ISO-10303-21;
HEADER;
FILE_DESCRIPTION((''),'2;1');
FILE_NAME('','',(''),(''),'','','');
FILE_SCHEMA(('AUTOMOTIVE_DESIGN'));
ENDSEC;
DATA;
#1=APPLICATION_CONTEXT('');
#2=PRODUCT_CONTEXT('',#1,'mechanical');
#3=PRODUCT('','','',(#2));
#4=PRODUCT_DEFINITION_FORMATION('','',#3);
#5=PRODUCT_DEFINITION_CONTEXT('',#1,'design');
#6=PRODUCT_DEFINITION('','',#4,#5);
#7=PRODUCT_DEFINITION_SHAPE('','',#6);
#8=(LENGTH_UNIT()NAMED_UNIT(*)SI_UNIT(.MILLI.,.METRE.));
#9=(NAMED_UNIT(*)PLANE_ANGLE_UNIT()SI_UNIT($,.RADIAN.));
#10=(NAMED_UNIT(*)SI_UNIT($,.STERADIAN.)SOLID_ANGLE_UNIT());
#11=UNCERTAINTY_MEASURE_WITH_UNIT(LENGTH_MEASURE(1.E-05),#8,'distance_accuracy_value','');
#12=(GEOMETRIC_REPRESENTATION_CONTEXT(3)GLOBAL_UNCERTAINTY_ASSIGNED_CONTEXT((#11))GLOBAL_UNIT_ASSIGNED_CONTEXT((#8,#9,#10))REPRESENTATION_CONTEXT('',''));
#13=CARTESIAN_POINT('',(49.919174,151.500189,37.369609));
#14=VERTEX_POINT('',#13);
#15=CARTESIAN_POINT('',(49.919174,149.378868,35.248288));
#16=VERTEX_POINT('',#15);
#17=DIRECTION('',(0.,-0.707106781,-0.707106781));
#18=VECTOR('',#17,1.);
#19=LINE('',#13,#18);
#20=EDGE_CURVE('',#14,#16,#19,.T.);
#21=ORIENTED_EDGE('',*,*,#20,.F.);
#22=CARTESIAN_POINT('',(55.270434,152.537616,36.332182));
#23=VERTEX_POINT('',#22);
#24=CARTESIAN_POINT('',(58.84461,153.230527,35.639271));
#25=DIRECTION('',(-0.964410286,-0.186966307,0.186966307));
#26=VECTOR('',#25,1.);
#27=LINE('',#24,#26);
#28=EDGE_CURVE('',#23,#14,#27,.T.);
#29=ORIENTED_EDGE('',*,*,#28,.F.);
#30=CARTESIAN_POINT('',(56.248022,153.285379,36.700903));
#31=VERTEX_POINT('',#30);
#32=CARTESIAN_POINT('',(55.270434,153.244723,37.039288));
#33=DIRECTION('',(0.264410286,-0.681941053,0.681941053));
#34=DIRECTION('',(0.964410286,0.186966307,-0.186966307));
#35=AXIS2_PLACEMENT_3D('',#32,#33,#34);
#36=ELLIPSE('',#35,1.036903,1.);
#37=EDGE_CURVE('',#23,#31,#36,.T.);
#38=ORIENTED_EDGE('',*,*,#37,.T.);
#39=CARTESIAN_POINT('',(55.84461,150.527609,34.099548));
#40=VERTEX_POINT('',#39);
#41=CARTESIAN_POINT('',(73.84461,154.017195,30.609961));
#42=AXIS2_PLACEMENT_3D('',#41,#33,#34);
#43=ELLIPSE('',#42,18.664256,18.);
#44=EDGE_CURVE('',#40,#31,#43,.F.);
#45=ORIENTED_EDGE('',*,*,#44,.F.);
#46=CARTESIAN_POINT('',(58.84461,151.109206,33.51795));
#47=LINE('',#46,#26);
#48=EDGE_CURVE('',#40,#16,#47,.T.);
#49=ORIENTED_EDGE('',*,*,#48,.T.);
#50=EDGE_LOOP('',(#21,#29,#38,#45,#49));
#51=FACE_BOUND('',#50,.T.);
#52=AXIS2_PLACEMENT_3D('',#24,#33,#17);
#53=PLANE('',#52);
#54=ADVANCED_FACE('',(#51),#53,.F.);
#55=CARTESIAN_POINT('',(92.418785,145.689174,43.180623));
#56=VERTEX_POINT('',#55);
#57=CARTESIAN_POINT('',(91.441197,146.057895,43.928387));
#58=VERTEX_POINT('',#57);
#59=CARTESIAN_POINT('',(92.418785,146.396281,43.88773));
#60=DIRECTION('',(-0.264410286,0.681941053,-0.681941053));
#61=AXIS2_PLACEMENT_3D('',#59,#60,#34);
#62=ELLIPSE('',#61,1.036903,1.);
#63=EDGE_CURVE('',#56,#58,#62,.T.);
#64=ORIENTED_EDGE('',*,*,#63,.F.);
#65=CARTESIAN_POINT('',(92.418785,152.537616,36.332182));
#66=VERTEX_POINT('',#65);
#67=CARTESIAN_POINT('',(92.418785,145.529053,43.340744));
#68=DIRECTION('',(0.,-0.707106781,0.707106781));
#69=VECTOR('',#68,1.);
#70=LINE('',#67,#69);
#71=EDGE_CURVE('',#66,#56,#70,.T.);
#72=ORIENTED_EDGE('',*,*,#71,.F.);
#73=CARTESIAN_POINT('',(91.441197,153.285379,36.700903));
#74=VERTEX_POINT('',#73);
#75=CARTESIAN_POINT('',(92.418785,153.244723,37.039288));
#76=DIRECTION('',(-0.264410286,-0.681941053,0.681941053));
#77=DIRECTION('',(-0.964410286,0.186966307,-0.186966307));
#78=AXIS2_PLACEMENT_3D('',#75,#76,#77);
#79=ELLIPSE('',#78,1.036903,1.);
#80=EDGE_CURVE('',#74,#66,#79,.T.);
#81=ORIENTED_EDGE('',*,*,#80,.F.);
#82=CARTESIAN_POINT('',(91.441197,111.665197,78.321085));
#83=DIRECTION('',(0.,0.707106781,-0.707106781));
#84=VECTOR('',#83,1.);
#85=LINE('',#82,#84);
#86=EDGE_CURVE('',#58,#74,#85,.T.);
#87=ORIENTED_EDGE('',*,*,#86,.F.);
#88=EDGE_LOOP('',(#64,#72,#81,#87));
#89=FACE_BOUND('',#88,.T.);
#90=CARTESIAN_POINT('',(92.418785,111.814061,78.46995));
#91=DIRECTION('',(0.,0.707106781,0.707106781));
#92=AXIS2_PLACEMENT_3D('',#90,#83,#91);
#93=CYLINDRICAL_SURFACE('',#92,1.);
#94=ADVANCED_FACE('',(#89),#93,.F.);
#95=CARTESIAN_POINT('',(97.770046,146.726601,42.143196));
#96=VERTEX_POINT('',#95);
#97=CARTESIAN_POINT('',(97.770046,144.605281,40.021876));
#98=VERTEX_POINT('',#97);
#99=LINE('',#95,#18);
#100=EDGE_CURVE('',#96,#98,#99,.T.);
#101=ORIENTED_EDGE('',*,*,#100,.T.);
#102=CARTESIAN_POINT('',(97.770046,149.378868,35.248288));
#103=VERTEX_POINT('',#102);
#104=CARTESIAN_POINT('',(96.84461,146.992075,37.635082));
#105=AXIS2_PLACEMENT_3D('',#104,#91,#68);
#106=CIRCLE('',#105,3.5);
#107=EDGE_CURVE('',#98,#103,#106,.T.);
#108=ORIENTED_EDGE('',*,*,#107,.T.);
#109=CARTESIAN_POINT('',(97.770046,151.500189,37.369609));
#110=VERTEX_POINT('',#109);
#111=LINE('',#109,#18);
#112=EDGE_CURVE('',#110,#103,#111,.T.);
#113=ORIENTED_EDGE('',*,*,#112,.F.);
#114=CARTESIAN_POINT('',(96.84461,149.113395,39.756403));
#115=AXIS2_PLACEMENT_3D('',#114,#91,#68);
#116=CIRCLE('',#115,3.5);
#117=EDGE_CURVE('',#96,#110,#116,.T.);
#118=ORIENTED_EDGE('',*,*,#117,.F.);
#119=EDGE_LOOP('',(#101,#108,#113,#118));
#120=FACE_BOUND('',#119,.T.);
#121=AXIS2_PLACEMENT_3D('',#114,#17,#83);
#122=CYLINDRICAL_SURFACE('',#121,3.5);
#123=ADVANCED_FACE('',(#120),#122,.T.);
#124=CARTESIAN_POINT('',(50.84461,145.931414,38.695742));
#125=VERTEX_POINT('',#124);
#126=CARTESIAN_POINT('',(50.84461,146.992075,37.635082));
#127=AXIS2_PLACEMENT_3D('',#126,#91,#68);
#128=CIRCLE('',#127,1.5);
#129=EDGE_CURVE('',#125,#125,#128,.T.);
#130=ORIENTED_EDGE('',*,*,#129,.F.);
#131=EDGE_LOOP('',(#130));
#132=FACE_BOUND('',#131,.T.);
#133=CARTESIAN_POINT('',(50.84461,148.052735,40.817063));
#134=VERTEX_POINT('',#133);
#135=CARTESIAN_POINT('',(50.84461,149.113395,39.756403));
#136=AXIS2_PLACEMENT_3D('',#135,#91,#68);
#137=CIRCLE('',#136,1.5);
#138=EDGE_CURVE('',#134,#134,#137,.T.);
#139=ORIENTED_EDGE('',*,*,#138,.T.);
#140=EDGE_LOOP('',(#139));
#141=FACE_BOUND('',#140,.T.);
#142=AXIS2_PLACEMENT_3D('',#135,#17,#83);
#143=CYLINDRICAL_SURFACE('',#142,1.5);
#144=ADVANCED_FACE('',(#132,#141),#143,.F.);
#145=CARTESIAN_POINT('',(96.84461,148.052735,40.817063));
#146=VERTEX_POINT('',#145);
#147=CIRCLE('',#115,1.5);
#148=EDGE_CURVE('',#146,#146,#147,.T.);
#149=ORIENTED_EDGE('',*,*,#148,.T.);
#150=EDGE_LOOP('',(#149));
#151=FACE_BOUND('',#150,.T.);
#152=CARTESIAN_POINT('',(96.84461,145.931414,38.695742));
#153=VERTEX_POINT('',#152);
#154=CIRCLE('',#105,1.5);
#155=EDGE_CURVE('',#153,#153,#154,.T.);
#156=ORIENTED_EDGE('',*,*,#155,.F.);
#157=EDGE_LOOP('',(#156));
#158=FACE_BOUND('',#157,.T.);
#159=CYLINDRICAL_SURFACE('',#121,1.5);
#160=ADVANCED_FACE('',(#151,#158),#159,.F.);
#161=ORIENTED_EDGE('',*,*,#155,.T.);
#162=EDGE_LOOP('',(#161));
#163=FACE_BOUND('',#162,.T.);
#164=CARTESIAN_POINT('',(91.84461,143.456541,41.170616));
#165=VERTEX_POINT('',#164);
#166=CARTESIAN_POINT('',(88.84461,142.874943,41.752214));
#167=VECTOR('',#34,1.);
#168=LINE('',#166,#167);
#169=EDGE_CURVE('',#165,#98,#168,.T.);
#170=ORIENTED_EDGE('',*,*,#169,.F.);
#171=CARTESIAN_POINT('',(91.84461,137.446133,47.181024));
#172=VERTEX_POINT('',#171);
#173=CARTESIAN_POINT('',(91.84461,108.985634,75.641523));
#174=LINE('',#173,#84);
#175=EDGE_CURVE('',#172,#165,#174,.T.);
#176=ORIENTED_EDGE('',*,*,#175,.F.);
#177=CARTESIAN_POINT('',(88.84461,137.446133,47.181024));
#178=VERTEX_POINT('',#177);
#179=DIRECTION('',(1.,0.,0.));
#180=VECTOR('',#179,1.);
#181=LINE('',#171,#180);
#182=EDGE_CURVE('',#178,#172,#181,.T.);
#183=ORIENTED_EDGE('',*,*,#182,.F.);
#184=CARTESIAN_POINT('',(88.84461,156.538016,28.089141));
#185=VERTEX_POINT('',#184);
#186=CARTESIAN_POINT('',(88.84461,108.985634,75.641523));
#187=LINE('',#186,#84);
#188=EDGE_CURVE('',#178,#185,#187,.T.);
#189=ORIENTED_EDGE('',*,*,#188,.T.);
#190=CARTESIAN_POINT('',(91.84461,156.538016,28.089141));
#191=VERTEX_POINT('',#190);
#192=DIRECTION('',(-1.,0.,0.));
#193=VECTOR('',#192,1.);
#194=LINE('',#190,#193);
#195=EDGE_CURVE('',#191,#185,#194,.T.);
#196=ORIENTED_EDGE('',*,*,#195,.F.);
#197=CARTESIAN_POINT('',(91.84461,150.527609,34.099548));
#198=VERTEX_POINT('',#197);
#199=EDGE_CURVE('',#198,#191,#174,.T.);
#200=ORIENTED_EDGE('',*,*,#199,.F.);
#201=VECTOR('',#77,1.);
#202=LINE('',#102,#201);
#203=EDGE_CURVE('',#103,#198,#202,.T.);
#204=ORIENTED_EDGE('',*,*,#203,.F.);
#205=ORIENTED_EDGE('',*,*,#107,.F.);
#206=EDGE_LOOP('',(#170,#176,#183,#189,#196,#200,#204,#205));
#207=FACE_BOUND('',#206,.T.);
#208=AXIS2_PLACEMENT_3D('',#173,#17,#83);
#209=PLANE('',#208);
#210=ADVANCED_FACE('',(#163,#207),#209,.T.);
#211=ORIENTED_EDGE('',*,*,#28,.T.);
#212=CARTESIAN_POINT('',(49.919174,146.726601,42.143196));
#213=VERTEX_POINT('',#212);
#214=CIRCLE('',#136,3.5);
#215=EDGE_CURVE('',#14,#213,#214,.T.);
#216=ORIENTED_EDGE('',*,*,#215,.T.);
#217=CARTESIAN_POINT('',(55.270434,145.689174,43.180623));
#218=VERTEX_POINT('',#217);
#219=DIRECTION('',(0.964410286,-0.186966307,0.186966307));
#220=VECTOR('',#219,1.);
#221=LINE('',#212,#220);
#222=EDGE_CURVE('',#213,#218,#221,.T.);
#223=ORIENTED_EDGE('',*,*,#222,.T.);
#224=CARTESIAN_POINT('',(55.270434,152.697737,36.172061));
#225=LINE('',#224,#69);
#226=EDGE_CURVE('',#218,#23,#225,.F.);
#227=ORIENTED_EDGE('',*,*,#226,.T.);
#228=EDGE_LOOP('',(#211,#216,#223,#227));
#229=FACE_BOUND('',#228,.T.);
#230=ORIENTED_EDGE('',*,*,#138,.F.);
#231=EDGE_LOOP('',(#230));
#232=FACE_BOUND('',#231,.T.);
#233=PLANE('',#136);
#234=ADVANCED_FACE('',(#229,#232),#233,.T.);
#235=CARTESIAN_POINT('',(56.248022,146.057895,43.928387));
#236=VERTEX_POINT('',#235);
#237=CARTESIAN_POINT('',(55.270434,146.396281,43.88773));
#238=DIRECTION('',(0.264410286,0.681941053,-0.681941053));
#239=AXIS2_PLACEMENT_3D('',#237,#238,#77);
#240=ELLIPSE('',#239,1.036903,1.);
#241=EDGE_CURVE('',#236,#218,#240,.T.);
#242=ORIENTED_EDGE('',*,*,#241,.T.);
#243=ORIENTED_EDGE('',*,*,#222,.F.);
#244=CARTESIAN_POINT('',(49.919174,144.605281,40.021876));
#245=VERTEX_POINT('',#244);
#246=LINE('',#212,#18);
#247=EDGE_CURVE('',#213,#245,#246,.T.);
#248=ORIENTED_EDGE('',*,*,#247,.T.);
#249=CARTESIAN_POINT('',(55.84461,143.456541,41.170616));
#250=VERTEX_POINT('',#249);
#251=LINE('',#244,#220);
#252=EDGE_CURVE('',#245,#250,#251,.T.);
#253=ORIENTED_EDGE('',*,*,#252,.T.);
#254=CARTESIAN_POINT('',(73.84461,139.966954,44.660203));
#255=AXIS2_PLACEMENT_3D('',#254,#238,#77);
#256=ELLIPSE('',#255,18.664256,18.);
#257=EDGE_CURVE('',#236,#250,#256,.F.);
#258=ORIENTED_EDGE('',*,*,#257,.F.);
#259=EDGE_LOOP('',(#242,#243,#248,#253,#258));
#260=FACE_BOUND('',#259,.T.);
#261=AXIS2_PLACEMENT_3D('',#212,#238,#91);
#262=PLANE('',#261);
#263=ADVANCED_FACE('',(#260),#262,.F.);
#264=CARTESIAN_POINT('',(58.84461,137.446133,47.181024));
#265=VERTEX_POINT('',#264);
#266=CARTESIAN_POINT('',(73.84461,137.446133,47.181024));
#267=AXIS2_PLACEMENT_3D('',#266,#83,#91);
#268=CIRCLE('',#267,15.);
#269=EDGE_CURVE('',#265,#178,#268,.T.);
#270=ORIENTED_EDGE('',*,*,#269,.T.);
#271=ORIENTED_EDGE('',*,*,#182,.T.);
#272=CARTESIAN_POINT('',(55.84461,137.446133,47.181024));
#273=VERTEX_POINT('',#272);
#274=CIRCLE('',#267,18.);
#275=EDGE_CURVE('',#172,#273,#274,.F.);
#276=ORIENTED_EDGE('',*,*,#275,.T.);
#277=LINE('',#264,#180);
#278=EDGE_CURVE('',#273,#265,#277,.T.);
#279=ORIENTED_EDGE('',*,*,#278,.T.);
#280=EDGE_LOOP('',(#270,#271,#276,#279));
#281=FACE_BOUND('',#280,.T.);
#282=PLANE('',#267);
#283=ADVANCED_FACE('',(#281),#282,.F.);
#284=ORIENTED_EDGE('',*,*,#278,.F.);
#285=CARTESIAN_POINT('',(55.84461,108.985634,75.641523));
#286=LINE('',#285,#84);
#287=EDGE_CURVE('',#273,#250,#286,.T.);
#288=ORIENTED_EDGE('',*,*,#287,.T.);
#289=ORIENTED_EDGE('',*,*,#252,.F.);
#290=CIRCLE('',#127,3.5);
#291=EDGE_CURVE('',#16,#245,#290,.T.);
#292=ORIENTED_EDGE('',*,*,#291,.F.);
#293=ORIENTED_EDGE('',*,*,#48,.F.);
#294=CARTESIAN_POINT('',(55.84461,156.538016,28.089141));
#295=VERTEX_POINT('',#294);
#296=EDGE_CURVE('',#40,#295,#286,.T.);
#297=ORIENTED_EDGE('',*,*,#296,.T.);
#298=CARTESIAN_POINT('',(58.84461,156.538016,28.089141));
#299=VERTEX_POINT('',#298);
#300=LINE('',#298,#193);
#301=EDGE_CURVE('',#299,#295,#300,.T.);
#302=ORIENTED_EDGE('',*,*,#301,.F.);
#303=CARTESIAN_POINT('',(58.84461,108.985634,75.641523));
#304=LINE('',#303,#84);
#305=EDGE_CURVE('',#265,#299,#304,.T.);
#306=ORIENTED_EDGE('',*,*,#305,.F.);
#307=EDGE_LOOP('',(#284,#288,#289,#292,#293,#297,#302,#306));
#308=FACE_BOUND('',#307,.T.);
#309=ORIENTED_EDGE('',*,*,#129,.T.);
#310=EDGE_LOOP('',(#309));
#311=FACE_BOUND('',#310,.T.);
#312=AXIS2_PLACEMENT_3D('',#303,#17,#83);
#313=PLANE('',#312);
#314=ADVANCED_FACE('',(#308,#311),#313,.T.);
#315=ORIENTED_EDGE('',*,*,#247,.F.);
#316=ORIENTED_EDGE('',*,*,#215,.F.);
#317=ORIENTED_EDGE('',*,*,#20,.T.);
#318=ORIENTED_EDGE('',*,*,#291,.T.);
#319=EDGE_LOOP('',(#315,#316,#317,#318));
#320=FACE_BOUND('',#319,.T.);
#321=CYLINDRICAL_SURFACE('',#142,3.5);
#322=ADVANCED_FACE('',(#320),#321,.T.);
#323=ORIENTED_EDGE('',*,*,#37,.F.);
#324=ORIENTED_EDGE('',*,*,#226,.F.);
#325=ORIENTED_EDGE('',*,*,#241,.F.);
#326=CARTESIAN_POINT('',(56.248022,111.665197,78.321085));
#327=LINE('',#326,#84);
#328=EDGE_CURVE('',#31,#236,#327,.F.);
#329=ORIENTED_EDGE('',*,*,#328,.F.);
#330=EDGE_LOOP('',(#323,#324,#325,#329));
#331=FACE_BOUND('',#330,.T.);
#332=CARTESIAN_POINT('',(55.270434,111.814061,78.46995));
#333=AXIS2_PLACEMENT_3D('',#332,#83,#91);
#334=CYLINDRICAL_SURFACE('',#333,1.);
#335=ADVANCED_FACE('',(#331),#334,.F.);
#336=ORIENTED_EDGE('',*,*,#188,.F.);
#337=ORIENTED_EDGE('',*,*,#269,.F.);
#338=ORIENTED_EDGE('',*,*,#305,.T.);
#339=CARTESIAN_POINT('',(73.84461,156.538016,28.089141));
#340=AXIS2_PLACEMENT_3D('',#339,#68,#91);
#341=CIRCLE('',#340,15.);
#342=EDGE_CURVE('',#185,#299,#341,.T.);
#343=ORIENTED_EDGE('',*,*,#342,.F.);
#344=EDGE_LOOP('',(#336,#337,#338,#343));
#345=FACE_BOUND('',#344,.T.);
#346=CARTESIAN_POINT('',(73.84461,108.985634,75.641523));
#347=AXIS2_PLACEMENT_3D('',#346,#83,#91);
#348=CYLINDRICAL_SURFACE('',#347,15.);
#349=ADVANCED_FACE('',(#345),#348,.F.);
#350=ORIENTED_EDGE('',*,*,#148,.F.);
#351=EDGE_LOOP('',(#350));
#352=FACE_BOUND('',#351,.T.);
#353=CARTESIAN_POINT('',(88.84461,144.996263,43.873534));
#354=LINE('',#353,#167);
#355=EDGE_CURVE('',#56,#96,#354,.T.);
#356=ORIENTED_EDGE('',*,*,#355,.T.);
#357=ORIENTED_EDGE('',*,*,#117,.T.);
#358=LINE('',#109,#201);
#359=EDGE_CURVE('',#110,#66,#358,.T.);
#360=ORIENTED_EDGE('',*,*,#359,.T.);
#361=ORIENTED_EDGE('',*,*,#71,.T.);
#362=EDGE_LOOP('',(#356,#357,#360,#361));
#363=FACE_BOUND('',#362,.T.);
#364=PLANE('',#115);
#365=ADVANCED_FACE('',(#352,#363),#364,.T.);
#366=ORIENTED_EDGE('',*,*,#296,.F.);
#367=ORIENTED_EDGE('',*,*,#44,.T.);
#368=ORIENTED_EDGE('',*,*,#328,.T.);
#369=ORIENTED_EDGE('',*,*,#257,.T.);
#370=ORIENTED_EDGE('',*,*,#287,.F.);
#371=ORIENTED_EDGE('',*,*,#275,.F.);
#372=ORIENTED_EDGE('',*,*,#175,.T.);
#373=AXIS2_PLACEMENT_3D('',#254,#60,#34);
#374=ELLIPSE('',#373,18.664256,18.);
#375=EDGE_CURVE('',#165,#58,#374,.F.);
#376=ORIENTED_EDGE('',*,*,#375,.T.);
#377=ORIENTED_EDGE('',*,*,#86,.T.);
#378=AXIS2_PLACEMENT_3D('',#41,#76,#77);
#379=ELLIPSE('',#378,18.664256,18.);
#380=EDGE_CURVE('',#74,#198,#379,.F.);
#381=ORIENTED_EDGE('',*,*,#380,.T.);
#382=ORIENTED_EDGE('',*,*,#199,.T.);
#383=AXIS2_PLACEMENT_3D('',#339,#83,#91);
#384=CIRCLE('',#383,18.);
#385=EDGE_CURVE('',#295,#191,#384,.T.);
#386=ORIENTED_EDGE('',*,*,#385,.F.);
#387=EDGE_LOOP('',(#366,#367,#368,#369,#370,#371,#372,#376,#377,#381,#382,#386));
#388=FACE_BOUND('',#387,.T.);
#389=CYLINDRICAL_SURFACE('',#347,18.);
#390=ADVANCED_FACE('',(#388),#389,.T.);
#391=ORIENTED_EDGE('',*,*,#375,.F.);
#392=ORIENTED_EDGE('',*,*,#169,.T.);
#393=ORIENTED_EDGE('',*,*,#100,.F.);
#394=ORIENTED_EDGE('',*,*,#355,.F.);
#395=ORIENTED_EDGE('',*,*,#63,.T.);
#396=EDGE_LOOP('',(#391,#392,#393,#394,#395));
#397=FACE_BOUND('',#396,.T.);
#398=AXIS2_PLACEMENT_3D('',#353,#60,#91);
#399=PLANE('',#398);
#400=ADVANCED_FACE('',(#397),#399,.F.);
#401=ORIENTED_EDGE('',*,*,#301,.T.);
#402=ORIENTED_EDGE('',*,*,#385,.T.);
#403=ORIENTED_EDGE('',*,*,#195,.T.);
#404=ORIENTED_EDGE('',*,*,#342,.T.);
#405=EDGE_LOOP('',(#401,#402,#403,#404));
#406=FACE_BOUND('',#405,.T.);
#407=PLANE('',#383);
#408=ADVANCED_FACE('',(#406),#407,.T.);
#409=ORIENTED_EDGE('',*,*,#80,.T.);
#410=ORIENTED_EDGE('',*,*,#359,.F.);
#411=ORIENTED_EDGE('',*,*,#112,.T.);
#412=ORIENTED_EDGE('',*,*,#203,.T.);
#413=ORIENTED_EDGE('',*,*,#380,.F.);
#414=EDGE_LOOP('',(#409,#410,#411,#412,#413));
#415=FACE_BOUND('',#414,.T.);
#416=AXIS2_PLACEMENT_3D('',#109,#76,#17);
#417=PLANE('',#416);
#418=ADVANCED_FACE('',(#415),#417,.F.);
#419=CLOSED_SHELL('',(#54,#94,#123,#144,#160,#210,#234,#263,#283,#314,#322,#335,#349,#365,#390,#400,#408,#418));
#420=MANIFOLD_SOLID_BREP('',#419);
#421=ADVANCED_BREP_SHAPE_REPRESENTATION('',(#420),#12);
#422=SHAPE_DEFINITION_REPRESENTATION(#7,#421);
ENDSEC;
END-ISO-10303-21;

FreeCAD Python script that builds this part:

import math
import FreeCAD as App
import Part
import Sketcher
Q = App.Units.Quantity


def edges_at(feature, points):
    """Names of the edges that pass closest to the given points."""
    edges = feature.Shape.Edges
    near = lambda p: min(range(len(edges)), key=lambda i: edges[i].distToShape(Part.Vertex(*p))[0])
    return sorted({f"Edge{near(p) + 1}" for p in points})

doc = App.newDocument("Part")
body = doc.addObject("PartDesign::Body", "Body")

sketch1 = body.newObject("Sketcher::SketchObject", "Sketch")
sketch1.Placement = App.Placement(App.Vector(0, 64.224438, -64.224438), App.Rotation(App.Vector(1, 0, 0), App.Vector(0, -0.707106781, -0.707106781), App.Vector(0, 0.707106781, -0.707106781), "ZXY"))
sketch1.addGeometry([
    Part.LineSegment(App.Vector(91.84461, -130.551114, 0), App.Vector(88.84461, -130.551114, 0)),
    Part.ArcOfCircle(Part.Circle(App.Vector(73.84461, -130.551114, 0), App.Vector(0, 0, 1), 15), math.radians(180), math.radians(360)),
    Part.LineSegment(App.Vector(58.84461, -130.551114, 0), App.Vector(55.84461, -130.551114, 0)),
    Part.ArcOfCircle(Part.Circle(App.Vector(73.84461, -130.551114, 0), App.Vector(0, 0, 1), 18), math.radians(180), math.radians(360)),
], False)
sketch1.addConstraint([
    Sketcher.Constraint("Coincident", 0, 2, 1, 2),
    Sketcher.Constraint("Coincident", 1, 1, 2, 1),
    Sketcher.Constraint("Coincident", 2, 2, 3, 1),
    Sketcher.Constraint("Coincident", 3, 2, 0, 1),
    Sketcher.Constraint("Horizontal", 0),
    Sketcher.Constraint("Horizontal", 2),
    Sketcher.Constraint("Coincident", 3, 3, 1, 3),
    Sketcher.Constraint("Horizontal", 3, 3, 0, 2),
    Sketcher.Constraint("Horizontal", 0, 2, 1, 1),
    Sketcher.Constraint("Radius", 1, Q("15 mm")),
    Sketcher.Constraint("Radius", 3, Q("18 mm")),
    Sketcher.Constraint("DistanceX", -1, 1, 1, 3, Q("73.84461 mm")),
    Sketcher.Constraint("DistanceY", 1, 3, -1, 1, Q("130.551114 mm")),
])
pad1 = body.newObject("PartDesign::Pad", "Pad")
pad1.Profile = sketch1
pad1.Length = 27
pad1.Reversed = True

sketch2 = body.newObject("Sketcher::SketchObject", "Sketch001")
sketch2.Placement = App.Placement(App.Vector(0, 92.313578, 92.313578), App.Rotation(App.Vector(1, 0, 0), App.Vector(0, 0.707106781, -0.707106781), App.Vector(0, 0.707106781, 0.707106781), "ZXY"))
sketch2.addGeometry([
    Part.LineSegment(App.Vector(97.770046, 80.702507, 0), App.Vector(88.84461, 83.149574, 0)),
    Part.LineSegment(App.Vector(88.84461, 83.149574, 0), App.Vector(88.84461, 71.504567, 0)),
    Part.LineSegment(App.Vector(88.84461, 71.504567, 0), App.Vector(97.770046, 73.951635, 0)),
    Part.ArcOfCircle(Part.Circle(App.Vector(96.84461, 77.327071, 0), App.Vector(0, 0, 1), 3.5), math.radians(-74.668085), math.radians(74.668085)),
    Part.Circle(App.Vector(96.84461, 77.327071, 0), App.Vector(0, 0, 1), 1.5),
    Part.LineSegment(App.Vector(49.919174, 73.951635, 0), App.Vector(58.84461, 71.504567, 0)),
    Part.LineSegment(App.Vector(58.84461, 71.504567, 0), App.Vector(58.84461, 83.149574, 0)),
    Part.LineSegment(App.Vector(58.84461, 83.149574, 0), App.Vector(49.919174, 80.702507, 0)),
    Part.ArcOfCircle(Part.Circle(App.Vector(50.84461, 77.327071, 0), App.Vector(0, 0, 1), 3.5), math.radians(105.331915), math.radians(254.668085)),
    Part.Circle(App.Vector(50.84461, 77.327071, 0), App.Vector(0, 0, 1), 1.5),
], False)
sketch2.addConstraint([
    Sketcher.Constraint("Coincident", 0, 2, 1, 1),
    Sketcher.Constraint("Coincident", 1, 2, 2, 1),
    Sketcher.Constraint("Tangent", 2, 2, 3, 1),
    Sketcher.Constraint("Tangent", 3, 2, 0, 1),
    Sketcher.Constraint("Coincident", 5, 2, 6, 1),
    Sketcher.Constraint("Coincident", 6, 2, 7, 1),
    Sketcher.Constraint("Tangent", 7, 2, 8, 1),
    Sketcher.Constraint("Tangent", 8, 2, 5, 1),
    Sketcher.Constraint("Vertical", 1),
    Sketcher.Constraint("Vertical", 6),
    Sketcher.Constraint("Coincident", 4, 3, 3, 3),
    Sketcher.Constraint("Coincident", 9, 3, 8, 3),
    Sketcher.Constraint("Equal", 3, 8),
    Sketcher.Constraint("Equal", 4, 9),
    Sketcher.Constraint("Parallel", 0, 5),
    Sketcher.Constraint("Parallel", 2, 7),
    Sketcher.Constraint("Horizontal", 4, 3, 8, 3),
    Sketcher.Constraint("Horizontal", 1, 2, 5, 2),
    Sketcher.Constraint("Horizontal", 0, 2, 6, 2),
    Sketcher.Constraint("Diameter", 4, Q("3 mm")),
    Sketcher.Constraint("Radius", 3, Q("3.5 mm")),
    Sketcher.Constraint("DistanceX", 8, 3, 3, 3, Q("46 mm")),
    Sketcher.Constraint("DistanceX", 0, 2, 3, 3, Q("8 mm")),
    Sketcher.Constraint("DistanceY", 1, 2, 1, 1, Q("11.645007 mm")),
    Sketcher.Constraint("DistanceX", -1, 1, 3, 3, Q("96.84461 mm")),
    Sketcher.Constraint("DistanceY", -1, 1, 3, 3, Q("77.327071 mm")),
])
pad2 = body.newObject("PartDesign::Pad", "Pad001")
pad2.Profile = sketch2
pad2.Length = 3
doc.recompute()

fillet = body.newObject("PartDesign::Fillet", "Fillet")
fillet.Base = (pad2, edges_at(pad2, [(91.593, 149.113, 39.756), (56.096, 149.113, 39.756)]))
fillet.Radius = 1

doc.recompute()
